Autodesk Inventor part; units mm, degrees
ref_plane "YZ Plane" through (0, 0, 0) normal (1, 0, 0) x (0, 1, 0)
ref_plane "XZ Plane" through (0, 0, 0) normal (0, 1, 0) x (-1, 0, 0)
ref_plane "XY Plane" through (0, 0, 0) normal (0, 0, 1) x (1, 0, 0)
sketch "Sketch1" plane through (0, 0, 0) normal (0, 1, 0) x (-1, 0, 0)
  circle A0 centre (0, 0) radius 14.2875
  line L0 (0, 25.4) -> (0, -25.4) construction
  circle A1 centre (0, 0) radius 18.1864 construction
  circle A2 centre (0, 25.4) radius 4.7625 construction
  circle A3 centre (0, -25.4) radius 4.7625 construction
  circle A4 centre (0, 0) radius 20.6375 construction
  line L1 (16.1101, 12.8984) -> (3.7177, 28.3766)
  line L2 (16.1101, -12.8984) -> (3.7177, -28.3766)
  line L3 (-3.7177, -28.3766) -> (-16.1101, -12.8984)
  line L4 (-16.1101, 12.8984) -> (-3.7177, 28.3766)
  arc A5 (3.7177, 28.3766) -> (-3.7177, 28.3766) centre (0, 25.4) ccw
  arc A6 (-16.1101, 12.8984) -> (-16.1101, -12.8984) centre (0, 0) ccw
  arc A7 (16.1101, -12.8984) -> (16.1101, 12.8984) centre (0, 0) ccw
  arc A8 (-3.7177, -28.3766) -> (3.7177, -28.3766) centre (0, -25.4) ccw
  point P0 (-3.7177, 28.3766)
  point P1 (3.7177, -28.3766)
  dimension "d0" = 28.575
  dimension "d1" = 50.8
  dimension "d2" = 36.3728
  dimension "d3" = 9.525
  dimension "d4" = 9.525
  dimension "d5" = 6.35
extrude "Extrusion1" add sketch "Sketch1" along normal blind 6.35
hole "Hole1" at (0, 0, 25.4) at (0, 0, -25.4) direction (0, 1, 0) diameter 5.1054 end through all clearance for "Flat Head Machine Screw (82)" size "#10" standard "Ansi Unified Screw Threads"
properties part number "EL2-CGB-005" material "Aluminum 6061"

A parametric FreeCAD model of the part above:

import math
import FreeCAD as App
import Part
import Sketcher

V = App.Vector
Q = App.Units.Quantity

doc = App.newDocument("Part")
body = doc.addObject("PartDesign::Body", "Body")

sketch1 = body.newObject("Sketcher::SketchObject", "Sketch")
sketch1.AttachmentSupport = (doc.getObject("XZ_Plane"), [""])
sketch1.MapMode = "FlatFace"
sketch1.addGeometry([
    Part.ArcOfCircle(Part.Circle(V(0, 0, 0), V(0, 0, 1), 20.6), math.radians(141), math.radians(219)),
    Part.LineSegment(V(-16.1, 12.9, 0), V(-3.7, 28.4, 0)),
    Part.ArcOfCircle(Part.Circle(V(0, 25.4, 0), V(0, 0, 1), 4.8), math.radians(39), math.radians(141)),
    Part.LineSegment(V(3.7, 28.4, 0), V(16.1, 12.9, 0)),
    Part.ArcOfCircle(Part.Circle(V(0, 0, 0), V(0, 0, 1), 20.6), math.radians(-39), math.radians(39)),
    Part.LineSegment(V(16.1, -12.9, 0), V(3.7, -28.4, 0)),
    Part.ArcOfCircle(Part.Circle(V(0, -25.4, 0), V(0, 0, 1), 4.8), math.radians(-141), math.radians(-39)),
    Part.LineSegment(V(-3.7, -28.4, 0), V(-16.1, -12.9, 0)),
    Part.Circle(V(0, 0, 0), V(0, 0, 1), 14.3),
], False)
sketch1.addConstraint([
    Sketcher.Constraint("Tangent", 0, 1, 1, 1),
    Sketcher.Constraint("Tangent", 1, 2, 2, 2),
    Sketcher.Constraint("Tangent", 2, 1, 3, 1),
    Sketcher.Constraint("Tangent", 3, 2, 4, 2),
    Sketcher.Constraint("Tangent", 4, 1, 5, 1),
    Sketcher.Constraint("Tangent", 5, 2, 6, 2),
    Sketcher.Constraint("Tangent", 6, 1, 7, 1),
    Sketcher.Constraint("Tangent", 7, 2, 0, 2),
    Sketcher.Constraint("Coincident", 0, 3, -1, 1),
    Sketcher.Constraint("Coincident", 4, 3, -1, 1),
    Sketcher.Constraint("Coincident", 8, 3, -1, 1),
    Sketcher.Constraint("Equal", 0, 4),
    Sketcher.Constraint("Equal", 2, 6),
    Sketcher.Constraint("Symmetric", 2, 3, 6, 3, -1, 1),
    Sketcher.Constraint("PointOnObject", 2, 3, -2),
    Sketcher.Constraint("Diameter", 8, Q("1.125 in")),
    Sketcher.Constraint("Radius", 2, Q("0.1875 in")),
    Sketcher.Constraint("DistanceY", 6, 3, 2, 3, Q("2 in")),
    Sketcher.Constraint("Radius", 0, Q("0.8125 in")),
])
pad1 = body.newObject("PartDesign::Pad", "Pad")
pad1.Profile = sketch1
pad1.Length = Q("0.25 in")
pad1.Reversed = True

sketch2 = body.newObject("Sketcher::SketchObject", "Sketch001")
sketch2.AttachmentSupport = (doc.getObject("XZ_Plane"), [""])
sketch2.MapMode = "FlatFace"
sketch2.addGeometry([
    Part.Circle(V(0, 25.4, 0), V(0, 0, 1), 2.6),
    Part.Circle(V(0, -25.4, 0), V(0, 0, 1), 2.6),
], False)
sketch2.addConstraint([
    Sketcher.Constraint("Equal", 0, 1),
    Sketcher.Constraint("Symmetric", 0, 3, 1, 3, -1, 1),
    Sketcher.Constraint("PointOnObject", 0, 3, -2),
    Sketcher.Constraint("Diameter", 0, Q("0.201 in")),
    Sketcher.Constraint("DistanceY", -1, 1, 0, 3, Q("1 in")),
])
doc.recompute()
hole = body.newObject("PartDesign::Hole", "Hole")
hole.Profile = sketch2
hole.ThreadType = "None"
hole.Diameter = Q("0.201 in")
hole.DepthType = "ThroughAll"

doc.recompute()
